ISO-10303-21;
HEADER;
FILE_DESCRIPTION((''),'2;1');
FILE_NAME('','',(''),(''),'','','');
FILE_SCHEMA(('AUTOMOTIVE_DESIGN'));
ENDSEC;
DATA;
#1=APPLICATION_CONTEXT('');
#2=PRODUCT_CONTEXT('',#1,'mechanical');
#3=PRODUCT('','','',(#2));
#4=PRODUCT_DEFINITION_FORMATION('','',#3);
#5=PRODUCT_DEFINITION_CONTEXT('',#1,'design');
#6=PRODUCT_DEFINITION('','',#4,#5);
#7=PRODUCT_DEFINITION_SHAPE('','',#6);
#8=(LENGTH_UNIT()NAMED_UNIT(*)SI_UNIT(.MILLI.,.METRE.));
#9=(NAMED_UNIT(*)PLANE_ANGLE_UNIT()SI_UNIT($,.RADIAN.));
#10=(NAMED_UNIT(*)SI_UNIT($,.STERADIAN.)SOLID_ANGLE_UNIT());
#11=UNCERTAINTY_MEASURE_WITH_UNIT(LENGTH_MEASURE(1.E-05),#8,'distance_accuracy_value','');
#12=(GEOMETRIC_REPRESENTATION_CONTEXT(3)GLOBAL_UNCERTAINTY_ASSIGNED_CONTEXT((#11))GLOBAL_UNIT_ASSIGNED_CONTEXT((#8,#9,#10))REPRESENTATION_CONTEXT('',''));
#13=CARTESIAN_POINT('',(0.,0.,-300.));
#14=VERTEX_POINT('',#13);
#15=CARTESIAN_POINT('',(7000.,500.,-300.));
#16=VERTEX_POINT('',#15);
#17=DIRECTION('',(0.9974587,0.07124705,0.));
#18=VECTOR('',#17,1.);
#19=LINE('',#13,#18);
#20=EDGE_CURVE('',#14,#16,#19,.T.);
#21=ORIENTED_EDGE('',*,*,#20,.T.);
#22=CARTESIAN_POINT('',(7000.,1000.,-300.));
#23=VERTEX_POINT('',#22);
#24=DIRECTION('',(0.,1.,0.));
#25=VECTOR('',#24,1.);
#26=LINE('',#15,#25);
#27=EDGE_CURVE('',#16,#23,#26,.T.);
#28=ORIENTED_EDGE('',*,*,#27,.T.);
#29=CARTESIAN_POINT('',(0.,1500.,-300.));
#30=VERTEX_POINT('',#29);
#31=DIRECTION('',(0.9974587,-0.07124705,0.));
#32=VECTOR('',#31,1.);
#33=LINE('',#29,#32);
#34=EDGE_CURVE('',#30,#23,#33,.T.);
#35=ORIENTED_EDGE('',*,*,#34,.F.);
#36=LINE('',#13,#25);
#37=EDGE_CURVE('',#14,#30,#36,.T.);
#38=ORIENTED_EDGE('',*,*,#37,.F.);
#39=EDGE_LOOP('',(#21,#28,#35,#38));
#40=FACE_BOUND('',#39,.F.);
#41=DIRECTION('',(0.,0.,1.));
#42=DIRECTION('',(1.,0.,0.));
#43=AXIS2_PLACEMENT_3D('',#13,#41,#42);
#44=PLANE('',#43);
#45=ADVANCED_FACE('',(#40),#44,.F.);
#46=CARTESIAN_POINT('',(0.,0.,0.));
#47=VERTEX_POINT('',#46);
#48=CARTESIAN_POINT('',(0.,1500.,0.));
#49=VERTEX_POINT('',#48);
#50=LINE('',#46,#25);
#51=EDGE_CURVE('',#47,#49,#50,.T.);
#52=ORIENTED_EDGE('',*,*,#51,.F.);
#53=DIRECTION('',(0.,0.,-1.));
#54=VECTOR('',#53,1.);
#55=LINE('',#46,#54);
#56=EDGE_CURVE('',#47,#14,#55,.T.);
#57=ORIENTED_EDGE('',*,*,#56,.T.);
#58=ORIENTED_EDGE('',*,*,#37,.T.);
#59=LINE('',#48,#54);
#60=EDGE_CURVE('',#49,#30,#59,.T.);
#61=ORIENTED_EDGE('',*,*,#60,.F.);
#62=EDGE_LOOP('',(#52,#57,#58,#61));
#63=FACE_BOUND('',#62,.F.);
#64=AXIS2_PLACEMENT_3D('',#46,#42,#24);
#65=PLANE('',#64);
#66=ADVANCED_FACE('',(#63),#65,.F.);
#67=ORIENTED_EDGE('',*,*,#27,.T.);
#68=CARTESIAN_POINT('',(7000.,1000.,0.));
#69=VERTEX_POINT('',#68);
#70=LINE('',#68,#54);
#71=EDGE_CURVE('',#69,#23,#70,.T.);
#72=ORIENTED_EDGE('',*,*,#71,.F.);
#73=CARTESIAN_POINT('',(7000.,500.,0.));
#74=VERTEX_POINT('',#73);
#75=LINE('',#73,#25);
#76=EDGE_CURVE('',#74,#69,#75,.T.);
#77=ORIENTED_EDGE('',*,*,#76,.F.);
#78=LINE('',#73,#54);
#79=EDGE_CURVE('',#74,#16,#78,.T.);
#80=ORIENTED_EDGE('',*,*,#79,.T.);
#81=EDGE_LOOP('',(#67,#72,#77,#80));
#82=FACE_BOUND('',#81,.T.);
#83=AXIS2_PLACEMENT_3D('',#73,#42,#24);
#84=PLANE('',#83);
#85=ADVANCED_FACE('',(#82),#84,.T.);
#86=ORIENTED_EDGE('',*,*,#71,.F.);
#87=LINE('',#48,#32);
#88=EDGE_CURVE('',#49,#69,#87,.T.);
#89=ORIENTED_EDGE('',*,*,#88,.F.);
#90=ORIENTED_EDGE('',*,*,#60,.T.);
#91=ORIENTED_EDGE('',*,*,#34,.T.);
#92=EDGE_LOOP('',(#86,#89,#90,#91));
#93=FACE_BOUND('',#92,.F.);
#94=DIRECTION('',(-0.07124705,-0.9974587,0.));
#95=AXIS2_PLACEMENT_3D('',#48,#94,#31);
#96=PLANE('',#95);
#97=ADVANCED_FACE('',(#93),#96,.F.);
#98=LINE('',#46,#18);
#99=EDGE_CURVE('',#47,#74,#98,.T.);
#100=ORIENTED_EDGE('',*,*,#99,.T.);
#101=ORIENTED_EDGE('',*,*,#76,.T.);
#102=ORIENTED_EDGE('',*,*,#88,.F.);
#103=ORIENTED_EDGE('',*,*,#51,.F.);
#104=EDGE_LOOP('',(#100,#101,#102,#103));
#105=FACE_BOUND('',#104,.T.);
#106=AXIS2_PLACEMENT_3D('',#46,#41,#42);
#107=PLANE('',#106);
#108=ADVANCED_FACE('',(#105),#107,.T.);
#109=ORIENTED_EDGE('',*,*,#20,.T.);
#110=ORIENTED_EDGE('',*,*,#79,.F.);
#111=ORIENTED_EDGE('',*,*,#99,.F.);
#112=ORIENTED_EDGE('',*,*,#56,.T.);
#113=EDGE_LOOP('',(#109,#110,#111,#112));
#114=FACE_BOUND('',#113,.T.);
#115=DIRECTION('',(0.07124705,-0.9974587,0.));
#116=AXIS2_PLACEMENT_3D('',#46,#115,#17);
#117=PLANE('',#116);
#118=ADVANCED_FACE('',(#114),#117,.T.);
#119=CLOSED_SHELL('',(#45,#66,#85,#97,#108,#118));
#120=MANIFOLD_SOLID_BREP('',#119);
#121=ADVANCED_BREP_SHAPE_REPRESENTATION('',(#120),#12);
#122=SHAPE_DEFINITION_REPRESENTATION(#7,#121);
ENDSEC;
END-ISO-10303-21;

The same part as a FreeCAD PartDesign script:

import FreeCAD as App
import Part
import Sketcher
Q = App.Units.Quantity

doc = App.newDocument("Part")
body = doc.addObject("PartDesign::Body", "Body")

sketch1 = body.newObject("Sketcher::SketchObject", "Sketch")
sketch1.AttachmentSupport = (doc.getObject("XY_Plane"), [""])
sketch1.MapMode = "FlatFace"
sketch1.addGeometry([
    Part.LineSegment(App.Vector(0, 1500, 0), App.Vector(0, 0, 0)),
    Part.LineSegment(App.Vector(0, 0, 0), App.Vector(7000, 500, 0)),
    Part.LineSegment(App.Vector(7000, 500, 0), App.Vector(7000, 1000, 0)),
    Part.LineSegment(App.Vector(7000, 1000, 0), App.Vector(0, 1500, 0)),
], False)
sketch1.addConstraint([
    Sketcher.Constraint("Coincident", 0, 2, 1, 1),
    Sketcher.Constraint("Coincident", 1, 2, 2, 1),
    Sketcher.Constraint("Coincident", 2, 2, 3, 1),
    Sketcher.Constraint("Coincident", 3, 2, 0, 1),
    Sketcher.Constraint("Vertical", 0),
    Sketcher.Constraint("Vertical", 2),
    Sketcher.Constraint("Coincident", 0, 2, -1, 1),
    Sketcher.Constraint("Equal", 1, 3),
    Sketcher.Constraint("DistanceY", 0, 2, 0, 1, Q("1500 mm")),
    Sketcher.Constraint("DistanceY", 2, 1, 2, 2, Q("500 mm")),
    Sketcher.Constraint("DistanceX", -1, 1, 1, 2, Q("7000 mm")),
])
pad1 = body.newObject("PartDesign::Pad", "Pad")
pad1.Profile = sketch1
pad1.Length = 300
pad1.Reversed = True

doc.recompute()
